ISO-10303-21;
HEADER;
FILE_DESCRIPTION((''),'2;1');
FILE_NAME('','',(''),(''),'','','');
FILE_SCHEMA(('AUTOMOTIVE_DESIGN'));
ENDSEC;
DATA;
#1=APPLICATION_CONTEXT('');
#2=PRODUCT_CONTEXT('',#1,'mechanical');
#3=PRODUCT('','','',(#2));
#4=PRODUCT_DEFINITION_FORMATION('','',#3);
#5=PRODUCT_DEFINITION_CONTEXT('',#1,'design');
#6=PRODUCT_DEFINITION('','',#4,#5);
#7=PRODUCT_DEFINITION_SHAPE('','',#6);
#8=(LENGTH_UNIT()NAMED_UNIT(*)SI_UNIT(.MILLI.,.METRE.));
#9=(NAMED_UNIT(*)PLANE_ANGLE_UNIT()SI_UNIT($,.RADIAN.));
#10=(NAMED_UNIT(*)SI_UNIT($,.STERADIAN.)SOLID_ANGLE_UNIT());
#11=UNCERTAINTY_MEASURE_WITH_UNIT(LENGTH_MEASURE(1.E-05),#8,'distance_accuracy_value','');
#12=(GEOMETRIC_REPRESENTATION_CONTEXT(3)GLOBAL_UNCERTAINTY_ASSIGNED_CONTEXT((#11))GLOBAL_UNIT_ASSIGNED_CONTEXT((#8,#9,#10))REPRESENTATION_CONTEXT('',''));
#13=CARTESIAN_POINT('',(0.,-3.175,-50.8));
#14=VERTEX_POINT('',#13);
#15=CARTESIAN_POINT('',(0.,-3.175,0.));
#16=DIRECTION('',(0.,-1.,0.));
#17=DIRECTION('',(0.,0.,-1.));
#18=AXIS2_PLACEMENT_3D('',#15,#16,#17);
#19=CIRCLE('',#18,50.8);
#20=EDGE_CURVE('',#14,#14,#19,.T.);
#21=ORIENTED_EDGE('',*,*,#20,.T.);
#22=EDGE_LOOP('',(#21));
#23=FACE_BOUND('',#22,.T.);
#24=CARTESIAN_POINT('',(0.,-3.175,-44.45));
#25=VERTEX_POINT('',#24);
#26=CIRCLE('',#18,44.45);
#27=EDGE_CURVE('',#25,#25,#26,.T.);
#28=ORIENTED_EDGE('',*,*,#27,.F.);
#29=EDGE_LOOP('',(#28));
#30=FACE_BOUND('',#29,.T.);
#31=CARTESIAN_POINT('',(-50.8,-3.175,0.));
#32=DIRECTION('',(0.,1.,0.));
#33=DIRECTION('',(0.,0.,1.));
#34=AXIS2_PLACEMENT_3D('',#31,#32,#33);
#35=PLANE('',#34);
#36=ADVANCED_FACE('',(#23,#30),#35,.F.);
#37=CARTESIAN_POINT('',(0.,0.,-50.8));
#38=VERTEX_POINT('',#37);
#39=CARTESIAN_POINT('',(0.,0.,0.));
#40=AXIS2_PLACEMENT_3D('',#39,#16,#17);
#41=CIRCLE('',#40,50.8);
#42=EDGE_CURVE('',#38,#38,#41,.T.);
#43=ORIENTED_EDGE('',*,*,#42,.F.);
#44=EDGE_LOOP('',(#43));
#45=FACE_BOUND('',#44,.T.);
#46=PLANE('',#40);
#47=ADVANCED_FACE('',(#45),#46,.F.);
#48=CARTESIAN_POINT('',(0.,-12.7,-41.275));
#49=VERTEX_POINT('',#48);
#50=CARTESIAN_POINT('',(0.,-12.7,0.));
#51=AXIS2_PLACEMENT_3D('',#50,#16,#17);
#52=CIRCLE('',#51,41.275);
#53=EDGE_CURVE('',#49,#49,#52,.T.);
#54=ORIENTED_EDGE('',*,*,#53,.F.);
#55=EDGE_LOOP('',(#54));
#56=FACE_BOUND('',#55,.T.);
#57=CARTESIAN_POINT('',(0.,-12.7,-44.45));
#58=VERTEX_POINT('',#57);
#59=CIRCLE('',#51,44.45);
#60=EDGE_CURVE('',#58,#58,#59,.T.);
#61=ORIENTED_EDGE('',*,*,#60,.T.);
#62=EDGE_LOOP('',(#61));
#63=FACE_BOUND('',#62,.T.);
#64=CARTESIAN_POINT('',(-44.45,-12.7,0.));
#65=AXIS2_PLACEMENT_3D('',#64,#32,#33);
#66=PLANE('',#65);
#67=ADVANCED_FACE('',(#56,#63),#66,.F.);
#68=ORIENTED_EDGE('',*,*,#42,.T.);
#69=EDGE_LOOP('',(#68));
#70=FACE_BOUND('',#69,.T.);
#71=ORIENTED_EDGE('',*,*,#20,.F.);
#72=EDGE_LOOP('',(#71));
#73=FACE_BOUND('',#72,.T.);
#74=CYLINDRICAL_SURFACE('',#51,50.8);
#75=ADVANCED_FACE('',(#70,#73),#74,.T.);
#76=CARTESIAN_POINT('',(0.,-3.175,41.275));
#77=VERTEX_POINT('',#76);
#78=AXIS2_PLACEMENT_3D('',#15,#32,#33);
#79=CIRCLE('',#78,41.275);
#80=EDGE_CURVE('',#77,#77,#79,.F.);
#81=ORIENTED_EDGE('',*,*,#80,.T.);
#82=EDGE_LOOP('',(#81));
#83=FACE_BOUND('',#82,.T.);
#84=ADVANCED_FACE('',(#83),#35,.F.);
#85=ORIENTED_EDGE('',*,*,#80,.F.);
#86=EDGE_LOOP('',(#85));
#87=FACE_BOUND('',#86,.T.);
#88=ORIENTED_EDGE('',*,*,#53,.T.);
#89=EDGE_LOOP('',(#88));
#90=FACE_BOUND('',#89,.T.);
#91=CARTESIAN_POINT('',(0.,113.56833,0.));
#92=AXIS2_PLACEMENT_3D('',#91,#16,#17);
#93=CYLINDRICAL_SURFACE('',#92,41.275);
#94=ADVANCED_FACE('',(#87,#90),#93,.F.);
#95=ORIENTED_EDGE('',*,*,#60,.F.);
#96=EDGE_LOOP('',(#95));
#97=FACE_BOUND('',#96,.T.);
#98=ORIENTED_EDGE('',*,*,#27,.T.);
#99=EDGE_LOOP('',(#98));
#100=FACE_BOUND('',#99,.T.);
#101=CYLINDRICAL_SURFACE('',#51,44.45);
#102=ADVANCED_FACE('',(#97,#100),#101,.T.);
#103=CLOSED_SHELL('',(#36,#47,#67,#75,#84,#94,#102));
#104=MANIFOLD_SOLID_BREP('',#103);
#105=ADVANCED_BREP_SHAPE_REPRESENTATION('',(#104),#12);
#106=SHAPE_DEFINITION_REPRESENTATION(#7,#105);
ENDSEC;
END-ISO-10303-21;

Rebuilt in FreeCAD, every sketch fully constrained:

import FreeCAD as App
import Part
import Sketcher
from FreeCAD import Vector
Q = App.Units.Quantity

doc = App.newDocument("Part")
body = doc.addObject("PartDesign::Body", "Body")

sketch1 = body.newObject("Sketcher::SketchObject", "Sketch")
sketch1.AttachmentSupport = (doc.getObject("XY_Plane"), [""])
sketch1.MapMode = "FlatFace"
sketch1.addGeometry([
    Part.LineSegment(Vector(0, 0, 0), Vector(-50.8, 0, 0)),
    Part.LineSegment(Vector(-50.8, 0, 0), Vector(-50.8, -3.2, 0)),
    Part.LineSegment(Vector(-50.8, -3.2, 0), Vector(-44.5, -3.2, 0)),
    Part.LineSegment(Vector(-44.5, -3.2, 0), Vector(-44.5, -12.7, 0)),
    Part.LineSegment(Vector(-44.5, -12.7, 0), Vector(0, -12.7, 0)),
    Part.LineSegment(Vector(0, -12.7, 0), Vector(0, 0, 0)),
], False)
sketch1.addConstraint([
    Sketcher.Constraint("Coincident", 0, 2, 1, 1),
    Sketcher.Constraint("Coincident", 1, 2, 2, 1),
    Sketcher.Constraint("Coincident", 2, 2, 3, 1),
    Sketcher.Constraint("Coincident", 3, 2, 4, 1),
    Sketcher.Constraint("Coincident", 4, 2, 5, 1),
    Sketcher.Constraint("Coincident", 5, 2, 0, 1),
    Sketcher.Constraint("Horizontal", 0),
    Sketcher.Constraint("Vertical", 1),
    Sketcher.Constraint("Horizontal", 2),
    Sketcher.Constraint("Vertical", 3),
    Sketcher.Constraint("Horizontal", 4),
    Sketcher.Constraint("Vertical", 5),
    Sketcher.Constraint("Coincident", 5, 2, -1, 1),
    Sketcher.Constraint("DistanceX", 0, 2, 0, 1, Q("2 in")),
    Sketcher.Constraint("DistanceY", 5, 1, 5, 2, Q("0.5 in")),
    Sketcher.Constraint("DistanceX", 2, 1, 2, 2, Q("0.25 in")),
    Sketcher.Constraint("DistanceY", 1, 2, 1, 1, Q("0.125 in")),
])
revolution = body.newObject("PartDesign::Revolution", "Revolution")
revolution.Profile = sketch1
revolution.ReferenceAxis = (sketch1, ["V_Axis"])
revolution.Angle = 360

sketch2 = body.newObject("Sketcher::SketchObject", "Sketch001")
sketch2.AttachmentSupport = (doc.getObject("XZ_Plane"), [""])
sketch2.MapMode = "FlatFace"
sketch2.AttachmentOffset = App.Placement(Vector(0, 0, 0.5 * 25.4), App.Rotation())
sketch2.addGeometry(Part.Circle(Vector(0, 0, 0), Vector(0, 0, 1), 41), False)
sketch2.addConstraint([
    Sketcher.Constraint("Coincident", 0, 3, -1, 1),
    Sketcher.Constraint("Diameter", 0, Q("3.25 in")),
])
pocket1 = body.newObject("PartDesign::Pocket", "Pocket")
pocket1.Profile = sketch2
pocket1.Length = Q("0.375 in")

doc.recompute()
